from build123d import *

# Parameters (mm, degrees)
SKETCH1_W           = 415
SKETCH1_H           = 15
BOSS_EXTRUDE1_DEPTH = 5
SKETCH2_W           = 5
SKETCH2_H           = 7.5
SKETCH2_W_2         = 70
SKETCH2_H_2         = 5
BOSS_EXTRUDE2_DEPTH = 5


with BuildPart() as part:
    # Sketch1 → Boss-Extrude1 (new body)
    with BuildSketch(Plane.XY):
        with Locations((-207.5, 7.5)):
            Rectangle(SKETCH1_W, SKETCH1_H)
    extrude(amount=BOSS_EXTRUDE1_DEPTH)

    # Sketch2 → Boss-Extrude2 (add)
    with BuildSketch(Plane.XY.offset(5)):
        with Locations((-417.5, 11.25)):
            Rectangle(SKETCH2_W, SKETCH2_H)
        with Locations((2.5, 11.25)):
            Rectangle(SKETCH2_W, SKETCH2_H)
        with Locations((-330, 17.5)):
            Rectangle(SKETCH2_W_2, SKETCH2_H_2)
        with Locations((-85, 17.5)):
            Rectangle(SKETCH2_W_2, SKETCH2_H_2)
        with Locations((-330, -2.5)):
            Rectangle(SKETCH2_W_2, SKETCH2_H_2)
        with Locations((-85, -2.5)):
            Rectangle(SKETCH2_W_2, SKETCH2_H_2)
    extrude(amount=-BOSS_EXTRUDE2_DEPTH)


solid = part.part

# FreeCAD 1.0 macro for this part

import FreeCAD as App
import Part
import Sketcher
Q = App.Units.Quantity


def add_polygon(sketch, points):
    """Adds a closed chain of lines whose ends are joined by coincident constraints."""
    first, n = sketch.GeometryCount, len(points)
    for a, b in zip(points, points[1:] + points[:1]):
        sketch.addGeometry(Part.LineSegment(App.Vector(*a, 0), App.Vector(*b, 0)), False)
    for i in range(n):
        sketch.addConstraint(Sketcher.Constraint("Coincident", first + i, 2, first + (i + 1) % n, 1))

doc = App.newDocument("Part")
body = doc.addObject("PartDesign::Body", "Body")

# Sketch on XY plane
sketch1 = body.newObject("Sketcher::SketchObject", "Sketch")
sketch1.AttachmentSupport = (doc.getObject("XY_Plane"), [""])
sketch1.MapMode = "FlatFace"
add_polygon(sketch1, [(-415, 15), (-415, 0), (0, 0), (0, 15)])  # lines 0-3
sketch1.addConstraint([
    Sketcher.Constraint("Vertical", 0),
    Sketcher.Constraint("Horizontal", 1),
    Sketcher.Constraint("Vertical", 2),
    Sketcher.Constraint("Horizontal", 3),
    Sketcher.Constraint("Coincident", 1, 2, -1, 1),
    Sketcher.Constraint("DistanceX", 1, 1, 1, 2, Q("415 mm")),
    Sketcher.Constraint("DistanceY", 0, 2, 0, 1, Q("15 mm")),
])
pad1 = body.newObject("PartDesign::Pad", "Pad")
pad1.Profile = sketch1
pad1.Length = 5

# Sketch on XY plane
sketch2 = body.newObject("Sketcher::SketchObject", "Sketch001")
sketch2.AttachmentSupport = (doc.getObject("XY_Plane"), [""])
sketch2.MapMode = "FlatFace"
sketch2.AttachmentOffset = App.Placement(App.Vector(0, 0, 5), App.Rotation())
add_polygon(sketch2, [(-420, 15), (-420, 8), (-415, 8), (-415, 15)])  # lines 0-3
add_polygon(sketch2, [(0, 15), (0, 8), (5, 8), (5, 15)])  # lines 4-7
add_polygon(sketch2, [(-365, 20), (-365, 15), (-295, 15), (-295, 20)])  # lines 8-11
add_polygon(sketch2, [(-120, 20), (-120, 15), (-50, 15), (-50, 20)])  # lines 12-15
add_polygon(sketch2, [(-365, 0), (-365, -5), (-295, -5), (-295, 0)])  # lines 16-19
add_polygon(sketch2, [(-120, 0), (-120, -5), (-50, -5), (-50, 0)])  # lines 20-23
sketch2.addConstraint([
    Sketcher.Constraint("Vertical", 0),
    Sketcher.Constraint("Horizontal", 1),
    Sketcher.Constraint("Vertical", 2),
    Sketcher.Constraint("Horizontal", 3),
    Sketcher.Constraint("Vertical", 4),
    Sketcher.Constraint("Horizontal", 5),
    Sketcher.Constraint("Vertical", 6),
    Sketcher.Constraint("Horizontal", 7),
    Sketcher.Constraint("Vertical", 8),
    Sketcher.Constraint("Horizontal", 9),
    Sketcher.Constraint("Vertical", 10),
    Sketcher.Constraint("Horizontal", 11),
    Sketcher.Constraint("Vertical", 12),
    Sketcher.Constraint("Horizontal", 13),
    Sketcher.Constraint("Vertical", 14),
    Sketcher.Constraint("Horizontal", 15),
    Sketcher.Constraint("Vertical", 16),
    Sketcher.Constraint("Horizontal", 17),
    Sketcher.Constraint("Vertical", 18),
    Sketcher.Constraint("Horizontal", 19),
    Sketcher.Constraint("Vertical", 20),
    Sketcher.Constraint("Horizontal", 21),
    Sketcher.Constraint("Vertical", 22),
    Sketcher.Constraint("Horizontal", 23),
    Sketcher.Constraint("PointOnObject", 4, 2, -2),
    Sketcher.Constraint("PointOnObject", 18, 2, -1),
    Sketcher.Constraint("PointOnObject", 22, 2, -1),
    Sketcher.Constraint("Horizontal", 1, 2, 4, 2),
    Sketcher.Constraint("Horizontal", 3, 2, 6, 2),
    Sketcher.Constraint("Horizontal", 7, 2, 8, 2),
    Sketcher.Constraint("Horizontal", 9, 2, 12, 2),
    Sketcher.Constraint("Horizontal", 11, 2, 14, 2),
    Sketcher.Constraint("Horizontal", 17, 2, 20, 2),
    Sketcher.Constraint("Vertical", 11, 2, 16, 2),
    Sketcher.Constraint("Vertical", 10, 2, 17, 2),
    Sketcher.Constraint("Vertical", 15, 2, 20, 2),
    Sketcher.Constraint("Vertical", 14, 2, 21, 2),
    Sketcher.Constraint("Equal", 3, 5),
    Sketcher.Constraint("Equal", 11, 13),
    Sketcher.Constraint("Equal", 7, 8),
    Sketcher.Constraint("Equal", 14, 16),
    Sketcher.Constraint("DistanceX", 1, 1, 1, 2, Q("5 mm")),
    Sketcher.Constraint("DistanceX", 9, 1, 9, 2, Q("70 mm")),
    Sketcher.Constraint("DistanceY", 0, 2, 0, 1, Q("7.5 mm")),
    Sketcher.Constraint("DistanceX", 0, 2, -1, 1, Q("420 mm")),
    Sketcher.Constraint("DistanceY", -1, 1, 2, 2, Q("15 mm")),
    Sketcher.Constraint("DistanceX", 8, 2, -1, 1, Q("365 mm")),
    Sketcher.Constraint("DistanceX", 12, 2, -1, 1, Q("120 mm")),
])
pad2 = body.newObject("PartDesign::Pad", "Pad001")
pad2.Profile = sketch2
pad2.Length = 5
pad2.Reversed = True

doc.recompute()
